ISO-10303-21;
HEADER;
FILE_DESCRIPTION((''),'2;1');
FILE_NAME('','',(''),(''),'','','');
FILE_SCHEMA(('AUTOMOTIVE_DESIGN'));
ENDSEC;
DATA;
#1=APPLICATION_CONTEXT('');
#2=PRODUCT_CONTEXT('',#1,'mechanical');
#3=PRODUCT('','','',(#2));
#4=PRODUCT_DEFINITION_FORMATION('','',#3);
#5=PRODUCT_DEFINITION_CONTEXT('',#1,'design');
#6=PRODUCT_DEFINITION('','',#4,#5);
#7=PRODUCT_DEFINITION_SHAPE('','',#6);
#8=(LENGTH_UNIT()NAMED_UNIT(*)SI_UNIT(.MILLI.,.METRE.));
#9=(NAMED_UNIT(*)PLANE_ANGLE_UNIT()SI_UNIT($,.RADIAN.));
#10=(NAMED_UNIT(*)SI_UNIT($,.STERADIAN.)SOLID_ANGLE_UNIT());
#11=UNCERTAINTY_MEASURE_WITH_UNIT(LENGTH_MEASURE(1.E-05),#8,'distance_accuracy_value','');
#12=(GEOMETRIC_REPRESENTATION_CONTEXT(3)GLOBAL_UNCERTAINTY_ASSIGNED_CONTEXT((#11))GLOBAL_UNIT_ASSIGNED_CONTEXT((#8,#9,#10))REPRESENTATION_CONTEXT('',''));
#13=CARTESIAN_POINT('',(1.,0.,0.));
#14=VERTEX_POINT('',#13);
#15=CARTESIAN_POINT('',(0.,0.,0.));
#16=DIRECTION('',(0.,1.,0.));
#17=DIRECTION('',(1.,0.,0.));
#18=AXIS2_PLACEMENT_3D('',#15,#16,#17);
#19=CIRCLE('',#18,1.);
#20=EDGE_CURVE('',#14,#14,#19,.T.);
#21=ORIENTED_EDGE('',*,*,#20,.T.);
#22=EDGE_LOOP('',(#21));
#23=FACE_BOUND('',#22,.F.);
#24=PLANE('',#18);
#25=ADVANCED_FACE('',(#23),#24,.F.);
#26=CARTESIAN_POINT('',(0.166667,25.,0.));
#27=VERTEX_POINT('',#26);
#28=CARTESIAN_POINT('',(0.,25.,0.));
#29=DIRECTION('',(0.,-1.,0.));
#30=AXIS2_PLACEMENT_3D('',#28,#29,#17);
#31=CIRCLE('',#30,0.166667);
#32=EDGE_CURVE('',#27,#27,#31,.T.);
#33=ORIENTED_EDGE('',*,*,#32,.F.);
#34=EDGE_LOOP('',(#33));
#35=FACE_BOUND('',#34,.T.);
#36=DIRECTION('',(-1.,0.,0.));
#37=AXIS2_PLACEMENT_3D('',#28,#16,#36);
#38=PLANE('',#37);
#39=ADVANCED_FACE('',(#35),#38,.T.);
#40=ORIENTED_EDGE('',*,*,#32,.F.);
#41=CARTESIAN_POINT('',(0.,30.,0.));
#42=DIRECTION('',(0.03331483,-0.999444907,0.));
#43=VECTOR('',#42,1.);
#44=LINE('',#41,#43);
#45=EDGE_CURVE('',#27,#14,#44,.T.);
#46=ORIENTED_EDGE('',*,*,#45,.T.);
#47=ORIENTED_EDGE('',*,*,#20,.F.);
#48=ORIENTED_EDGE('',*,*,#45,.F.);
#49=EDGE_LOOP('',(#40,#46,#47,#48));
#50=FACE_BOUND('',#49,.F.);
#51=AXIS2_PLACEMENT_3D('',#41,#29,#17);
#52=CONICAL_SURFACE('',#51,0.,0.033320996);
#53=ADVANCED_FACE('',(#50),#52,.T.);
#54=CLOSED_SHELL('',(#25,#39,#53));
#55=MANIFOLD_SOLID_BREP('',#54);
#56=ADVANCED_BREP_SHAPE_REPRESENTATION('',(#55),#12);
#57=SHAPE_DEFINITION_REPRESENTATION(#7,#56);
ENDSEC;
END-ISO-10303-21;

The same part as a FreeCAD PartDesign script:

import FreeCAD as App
import Part
import Sketcher

V = App.Vector

doc = App.newDocument("Part")
body = doc.addObject("PartDesign::Body", "Body")

sketch1 = doc.addObject("Sketcher::SketchObject", "Sketch")
body.addObject(sketch1)
sketch1.AttachmentSupport = (doc.XY_Plane, [""])
sketch1.MapMode = "FlatFace"
sketch1.addGeometry([
    Part.LineSegment(V(0, 30, 0), V(0, 0, 0)),
    Part.LineSegment(V(0, 0, 0), V(1, 0, 0)),
    Part.LineSegment(V(1, 0, 0), V(0, 30, 0)),
], False)
sketch1.addConstraint([
    Sketcher.Constraint("Coincident", 0, 2, 1, 1),
    Sketcher.Constraint("Coincident", 1, 2, 2, 1),
    Sketcher.Constraint("Coincident", 2, 2, 0, 1),
    Sketcher.Constraint("Vertical", 0),
    Sketcher.Constraint("Horizontal", 1),
    Sketcher.Constraint("Coincident", 0, 2, -1, 1),
    Sketcher.Constraint("DistanceX", 1, 1, 1, 2, 1.0),
    Sketcher.Constraint("DistanceY", 0, 2, 0, 1, 30.0),
])
revolution = doc.addObject("PartDesign::Revolution", "Revolution")
body.addObject(revolution)
revolution.Profile = sketch1
revolution.ReferenceAxis = (sketch1, ["V_Axis"])
revolution.Angle = 360

sketch2 = doc.addObject("Sketcher::SketchObject", "Sketch001")
body.addObject(sketch2)
sketch2.AttachmentSupport = (doc.XZ_Plane, [""])
sketch2.MapMode = "FlatFace"
sketch2.AttachmentOffset = App.Placement(V(0, 0, -30), App.Rotation())
sketch2.addGeometry(Part.Circle(V(0, 0, 0), V(0, 0, 1), 2.8), False)
sketch2.addConstraint([
    Sketcher.Constraint("Coincident", 0, 3, -1, 1),
    Sketcher.Constraint("Diameter", 0, 5.622),
])
pocket1 = doc.addObject("PartDesign::Pocket", "Pocket")
body.addObject(pocket1)
pocket1.Profile = sketch2
pocket1.Length = 5
pocket1.Reversed = True

doc.recompute()
